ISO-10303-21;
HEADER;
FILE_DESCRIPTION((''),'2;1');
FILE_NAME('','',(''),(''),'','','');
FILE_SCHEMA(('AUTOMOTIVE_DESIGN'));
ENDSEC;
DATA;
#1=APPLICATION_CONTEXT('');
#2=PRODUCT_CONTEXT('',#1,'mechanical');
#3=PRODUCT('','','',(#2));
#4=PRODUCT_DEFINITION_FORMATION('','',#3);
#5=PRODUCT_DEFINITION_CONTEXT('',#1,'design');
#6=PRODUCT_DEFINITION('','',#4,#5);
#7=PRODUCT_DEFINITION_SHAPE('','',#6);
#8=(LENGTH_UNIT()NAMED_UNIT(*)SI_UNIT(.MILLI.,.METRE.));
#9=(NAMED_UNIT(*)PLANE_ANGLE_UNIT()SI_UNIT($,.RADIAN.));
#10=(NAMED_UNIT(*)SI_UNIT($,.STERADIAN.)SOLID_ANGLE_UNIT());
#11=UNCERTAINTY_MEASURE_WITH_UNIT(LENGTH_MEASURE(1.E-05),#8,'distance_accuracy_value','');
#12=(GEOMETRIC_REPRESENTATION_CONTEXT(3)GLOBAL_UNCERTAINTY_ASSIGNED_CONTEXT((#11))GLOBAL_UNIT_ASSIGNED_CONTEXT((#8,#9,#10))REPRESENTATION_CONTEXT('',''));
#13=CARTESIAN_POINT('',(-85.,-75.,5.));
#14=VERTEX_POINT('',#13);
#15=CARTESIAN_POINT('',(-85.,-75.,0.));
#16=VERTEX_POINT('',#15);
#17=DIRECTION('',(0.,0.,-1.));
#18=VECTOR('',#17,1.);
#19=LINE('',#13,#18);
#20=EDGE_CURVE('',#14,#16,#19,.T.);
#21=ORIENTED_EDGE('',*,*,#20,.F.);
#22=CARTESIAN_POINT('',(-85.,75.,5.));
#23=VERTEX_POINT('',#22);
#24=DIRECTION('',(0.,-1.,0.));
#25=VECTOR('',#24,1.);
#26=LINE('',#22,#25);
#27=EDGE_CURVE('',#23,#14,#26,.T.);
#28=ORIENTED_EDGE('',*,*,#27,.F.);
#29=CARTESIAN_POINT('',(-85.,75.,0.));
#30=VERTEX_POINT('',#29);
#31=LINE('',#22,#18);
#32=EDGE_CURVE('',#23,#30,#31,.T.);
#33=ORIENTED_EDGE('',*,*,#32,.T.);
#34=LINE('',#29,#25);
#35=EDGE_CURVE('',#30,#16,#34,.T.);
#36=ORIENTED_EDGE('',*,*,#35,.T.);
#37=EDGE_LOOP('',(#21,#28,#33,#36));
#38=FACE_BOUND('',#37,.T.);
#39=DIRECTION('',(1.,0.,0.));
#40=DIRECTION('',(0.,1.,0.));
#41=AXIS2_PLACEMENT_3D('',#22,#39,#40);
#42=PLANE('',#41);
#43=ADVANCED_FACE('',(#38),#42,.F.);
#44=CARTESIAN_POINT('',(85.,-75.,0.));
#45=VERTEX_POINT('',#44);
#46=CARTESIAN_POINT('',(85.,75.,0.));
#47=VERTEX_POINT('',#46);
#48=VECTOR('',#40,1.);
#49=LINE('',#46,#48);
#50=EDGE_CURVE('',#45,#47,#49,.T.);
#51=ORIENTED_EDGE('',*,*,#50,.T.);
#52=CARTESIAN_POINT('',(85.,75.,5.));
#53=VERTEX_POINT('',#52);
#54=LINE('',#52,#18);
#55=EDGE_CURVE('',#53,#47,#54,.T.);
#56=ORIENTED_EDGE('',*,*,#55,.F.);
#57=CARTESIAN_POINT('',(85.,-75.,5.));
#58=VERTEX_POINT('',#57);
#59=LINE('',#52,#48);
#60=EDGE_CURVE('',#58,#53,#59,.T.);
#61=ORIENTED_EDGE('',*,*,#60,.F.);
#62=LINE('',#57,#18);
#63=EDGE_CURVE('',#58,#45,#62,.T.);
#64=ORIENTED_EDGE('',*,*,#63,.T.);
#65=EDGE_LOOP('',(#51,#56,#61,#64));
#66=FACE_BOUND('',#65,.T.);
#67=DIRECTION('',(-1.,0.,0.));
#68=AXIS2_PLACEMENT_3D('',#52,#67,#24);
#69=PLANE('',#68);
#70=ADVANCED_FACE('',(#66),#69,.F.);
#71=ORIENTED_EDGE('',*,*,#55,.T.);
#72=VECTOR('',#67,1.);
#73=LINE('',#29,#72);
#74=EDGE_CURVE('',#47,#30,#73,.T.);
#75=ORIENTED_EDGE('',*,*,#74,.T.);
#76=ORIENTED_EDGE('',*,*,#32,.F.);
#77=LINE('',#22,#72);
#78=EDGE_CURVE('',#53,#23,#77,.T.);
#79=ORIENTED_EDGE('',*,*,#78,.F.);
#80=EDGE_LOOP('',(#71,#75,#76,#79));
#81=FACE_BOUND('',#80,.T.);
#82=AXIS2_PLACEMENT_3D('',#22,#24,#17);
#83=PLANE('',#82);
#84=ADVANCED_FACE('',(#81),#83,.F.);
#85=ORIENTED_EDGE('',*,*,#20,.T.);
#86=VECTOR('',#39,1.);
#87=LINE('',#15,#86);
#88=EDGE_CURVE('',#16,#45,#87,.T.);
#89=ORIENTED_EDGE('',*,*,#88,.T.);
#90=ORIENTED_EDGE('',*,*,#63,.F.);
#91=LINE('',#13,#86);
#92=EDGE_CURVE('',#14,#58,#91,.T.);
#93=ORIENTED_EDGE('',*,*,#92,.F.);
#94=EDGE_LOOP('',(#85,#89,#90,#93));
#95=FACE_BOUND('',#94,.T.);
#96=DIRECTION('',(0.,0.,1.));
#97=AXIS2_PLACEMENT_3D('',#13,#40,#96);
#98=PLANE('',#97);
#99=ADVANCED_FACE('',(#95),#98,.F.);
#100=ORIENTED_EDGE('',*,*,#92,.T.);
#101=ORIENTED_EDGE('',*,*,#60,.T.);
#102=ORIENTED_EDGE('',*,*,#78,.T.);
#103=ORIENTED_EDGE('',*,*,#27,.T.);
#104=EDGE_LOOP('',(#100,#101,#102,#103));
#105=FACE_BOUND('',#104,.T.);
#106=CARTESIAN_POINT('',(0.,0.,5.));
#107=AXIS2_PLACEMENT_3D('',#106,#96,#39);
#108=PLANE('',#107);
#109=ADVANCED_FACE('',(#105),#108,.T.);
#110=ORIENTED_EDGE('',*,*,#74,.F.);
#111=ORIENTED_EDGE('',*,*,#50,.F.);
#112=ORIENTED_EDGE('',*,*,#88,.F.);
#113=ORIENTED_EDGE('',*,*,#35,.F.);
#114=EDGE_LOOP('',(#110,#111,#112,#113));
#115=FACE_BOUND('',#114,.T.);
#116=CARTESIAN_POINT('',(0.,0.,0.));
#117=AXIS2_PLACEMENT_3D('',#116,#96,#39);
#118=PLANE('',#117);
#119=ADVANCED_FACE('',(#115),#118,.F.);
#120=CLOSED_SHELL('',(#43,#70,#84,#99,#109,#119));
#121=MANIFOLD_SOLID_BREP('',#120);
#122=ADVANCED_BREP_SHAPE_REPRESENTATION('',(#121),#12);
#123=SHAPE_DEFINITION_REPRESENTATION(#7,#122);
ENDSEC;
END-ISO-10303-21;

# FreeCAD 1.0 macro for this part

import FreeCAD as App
import Part
import Sketcher

doc = App.newDocument("Part")
body = doc.addObject("PartDesign::Body", "Body")

# Sketch on XY plane
sketch1 = body.newObject("Sketcher::SketchObject", "Sketch")
sketch1.AttachmentSupport = (doc.getObject("XY_Plane"), [""])
sketch1.MapMode = "FlatFace"
sketch1.addGeometry([
    Part.LineSegment(App.Vector(-85, 75, 0), App.Vector(-85, -75, 0)),
    Part.LineSegment(App.Vector(-85, -75, 0), App.Vector(85, -75, 0)),
    Part.LineSegment(App.Vector(85, -75, 0), App.Vector(85, 75, 0)),
    Part.LineSegment(App.Vector(85, 75, 0), App.Vector(-85, 75, 0)),
], False)
sketch1.addConstraint([
    Sketcher.Constraint("Coincident", 0, 2, 1, 1),
    Sketcher.Constraint("Coincident", 1, 2, 2, 1),
    Sketcher.Constraint("Coincident", 2, 2, 3, 1),
    Sketcher.Constraint("Coincident", 3, 2, 0, 1),
    Sketcher.Constraint("Vertical", 0),
    Sketcher.Constraint("Horizontal", 1),
    Sketcher.Constraint("Vertical", 2),
    Sketcher.Constraint("Horizontal", 3),
    Sketcher.Constraint("Symmetric", 0, 2, 2, 2, -1, 1),
    Sketcher.Constraint("DistanceX", 1, 1, 1, 2, 170.0),
    Sketcher.Constraint("DistanceY", 0, 2, 0, 1, 150.0),
])
pad1 = body.newObject("PartDesign::Pad", "Pad")
pad1.Profile = sketch1
pad1.Length = 5

doc.recompute()
